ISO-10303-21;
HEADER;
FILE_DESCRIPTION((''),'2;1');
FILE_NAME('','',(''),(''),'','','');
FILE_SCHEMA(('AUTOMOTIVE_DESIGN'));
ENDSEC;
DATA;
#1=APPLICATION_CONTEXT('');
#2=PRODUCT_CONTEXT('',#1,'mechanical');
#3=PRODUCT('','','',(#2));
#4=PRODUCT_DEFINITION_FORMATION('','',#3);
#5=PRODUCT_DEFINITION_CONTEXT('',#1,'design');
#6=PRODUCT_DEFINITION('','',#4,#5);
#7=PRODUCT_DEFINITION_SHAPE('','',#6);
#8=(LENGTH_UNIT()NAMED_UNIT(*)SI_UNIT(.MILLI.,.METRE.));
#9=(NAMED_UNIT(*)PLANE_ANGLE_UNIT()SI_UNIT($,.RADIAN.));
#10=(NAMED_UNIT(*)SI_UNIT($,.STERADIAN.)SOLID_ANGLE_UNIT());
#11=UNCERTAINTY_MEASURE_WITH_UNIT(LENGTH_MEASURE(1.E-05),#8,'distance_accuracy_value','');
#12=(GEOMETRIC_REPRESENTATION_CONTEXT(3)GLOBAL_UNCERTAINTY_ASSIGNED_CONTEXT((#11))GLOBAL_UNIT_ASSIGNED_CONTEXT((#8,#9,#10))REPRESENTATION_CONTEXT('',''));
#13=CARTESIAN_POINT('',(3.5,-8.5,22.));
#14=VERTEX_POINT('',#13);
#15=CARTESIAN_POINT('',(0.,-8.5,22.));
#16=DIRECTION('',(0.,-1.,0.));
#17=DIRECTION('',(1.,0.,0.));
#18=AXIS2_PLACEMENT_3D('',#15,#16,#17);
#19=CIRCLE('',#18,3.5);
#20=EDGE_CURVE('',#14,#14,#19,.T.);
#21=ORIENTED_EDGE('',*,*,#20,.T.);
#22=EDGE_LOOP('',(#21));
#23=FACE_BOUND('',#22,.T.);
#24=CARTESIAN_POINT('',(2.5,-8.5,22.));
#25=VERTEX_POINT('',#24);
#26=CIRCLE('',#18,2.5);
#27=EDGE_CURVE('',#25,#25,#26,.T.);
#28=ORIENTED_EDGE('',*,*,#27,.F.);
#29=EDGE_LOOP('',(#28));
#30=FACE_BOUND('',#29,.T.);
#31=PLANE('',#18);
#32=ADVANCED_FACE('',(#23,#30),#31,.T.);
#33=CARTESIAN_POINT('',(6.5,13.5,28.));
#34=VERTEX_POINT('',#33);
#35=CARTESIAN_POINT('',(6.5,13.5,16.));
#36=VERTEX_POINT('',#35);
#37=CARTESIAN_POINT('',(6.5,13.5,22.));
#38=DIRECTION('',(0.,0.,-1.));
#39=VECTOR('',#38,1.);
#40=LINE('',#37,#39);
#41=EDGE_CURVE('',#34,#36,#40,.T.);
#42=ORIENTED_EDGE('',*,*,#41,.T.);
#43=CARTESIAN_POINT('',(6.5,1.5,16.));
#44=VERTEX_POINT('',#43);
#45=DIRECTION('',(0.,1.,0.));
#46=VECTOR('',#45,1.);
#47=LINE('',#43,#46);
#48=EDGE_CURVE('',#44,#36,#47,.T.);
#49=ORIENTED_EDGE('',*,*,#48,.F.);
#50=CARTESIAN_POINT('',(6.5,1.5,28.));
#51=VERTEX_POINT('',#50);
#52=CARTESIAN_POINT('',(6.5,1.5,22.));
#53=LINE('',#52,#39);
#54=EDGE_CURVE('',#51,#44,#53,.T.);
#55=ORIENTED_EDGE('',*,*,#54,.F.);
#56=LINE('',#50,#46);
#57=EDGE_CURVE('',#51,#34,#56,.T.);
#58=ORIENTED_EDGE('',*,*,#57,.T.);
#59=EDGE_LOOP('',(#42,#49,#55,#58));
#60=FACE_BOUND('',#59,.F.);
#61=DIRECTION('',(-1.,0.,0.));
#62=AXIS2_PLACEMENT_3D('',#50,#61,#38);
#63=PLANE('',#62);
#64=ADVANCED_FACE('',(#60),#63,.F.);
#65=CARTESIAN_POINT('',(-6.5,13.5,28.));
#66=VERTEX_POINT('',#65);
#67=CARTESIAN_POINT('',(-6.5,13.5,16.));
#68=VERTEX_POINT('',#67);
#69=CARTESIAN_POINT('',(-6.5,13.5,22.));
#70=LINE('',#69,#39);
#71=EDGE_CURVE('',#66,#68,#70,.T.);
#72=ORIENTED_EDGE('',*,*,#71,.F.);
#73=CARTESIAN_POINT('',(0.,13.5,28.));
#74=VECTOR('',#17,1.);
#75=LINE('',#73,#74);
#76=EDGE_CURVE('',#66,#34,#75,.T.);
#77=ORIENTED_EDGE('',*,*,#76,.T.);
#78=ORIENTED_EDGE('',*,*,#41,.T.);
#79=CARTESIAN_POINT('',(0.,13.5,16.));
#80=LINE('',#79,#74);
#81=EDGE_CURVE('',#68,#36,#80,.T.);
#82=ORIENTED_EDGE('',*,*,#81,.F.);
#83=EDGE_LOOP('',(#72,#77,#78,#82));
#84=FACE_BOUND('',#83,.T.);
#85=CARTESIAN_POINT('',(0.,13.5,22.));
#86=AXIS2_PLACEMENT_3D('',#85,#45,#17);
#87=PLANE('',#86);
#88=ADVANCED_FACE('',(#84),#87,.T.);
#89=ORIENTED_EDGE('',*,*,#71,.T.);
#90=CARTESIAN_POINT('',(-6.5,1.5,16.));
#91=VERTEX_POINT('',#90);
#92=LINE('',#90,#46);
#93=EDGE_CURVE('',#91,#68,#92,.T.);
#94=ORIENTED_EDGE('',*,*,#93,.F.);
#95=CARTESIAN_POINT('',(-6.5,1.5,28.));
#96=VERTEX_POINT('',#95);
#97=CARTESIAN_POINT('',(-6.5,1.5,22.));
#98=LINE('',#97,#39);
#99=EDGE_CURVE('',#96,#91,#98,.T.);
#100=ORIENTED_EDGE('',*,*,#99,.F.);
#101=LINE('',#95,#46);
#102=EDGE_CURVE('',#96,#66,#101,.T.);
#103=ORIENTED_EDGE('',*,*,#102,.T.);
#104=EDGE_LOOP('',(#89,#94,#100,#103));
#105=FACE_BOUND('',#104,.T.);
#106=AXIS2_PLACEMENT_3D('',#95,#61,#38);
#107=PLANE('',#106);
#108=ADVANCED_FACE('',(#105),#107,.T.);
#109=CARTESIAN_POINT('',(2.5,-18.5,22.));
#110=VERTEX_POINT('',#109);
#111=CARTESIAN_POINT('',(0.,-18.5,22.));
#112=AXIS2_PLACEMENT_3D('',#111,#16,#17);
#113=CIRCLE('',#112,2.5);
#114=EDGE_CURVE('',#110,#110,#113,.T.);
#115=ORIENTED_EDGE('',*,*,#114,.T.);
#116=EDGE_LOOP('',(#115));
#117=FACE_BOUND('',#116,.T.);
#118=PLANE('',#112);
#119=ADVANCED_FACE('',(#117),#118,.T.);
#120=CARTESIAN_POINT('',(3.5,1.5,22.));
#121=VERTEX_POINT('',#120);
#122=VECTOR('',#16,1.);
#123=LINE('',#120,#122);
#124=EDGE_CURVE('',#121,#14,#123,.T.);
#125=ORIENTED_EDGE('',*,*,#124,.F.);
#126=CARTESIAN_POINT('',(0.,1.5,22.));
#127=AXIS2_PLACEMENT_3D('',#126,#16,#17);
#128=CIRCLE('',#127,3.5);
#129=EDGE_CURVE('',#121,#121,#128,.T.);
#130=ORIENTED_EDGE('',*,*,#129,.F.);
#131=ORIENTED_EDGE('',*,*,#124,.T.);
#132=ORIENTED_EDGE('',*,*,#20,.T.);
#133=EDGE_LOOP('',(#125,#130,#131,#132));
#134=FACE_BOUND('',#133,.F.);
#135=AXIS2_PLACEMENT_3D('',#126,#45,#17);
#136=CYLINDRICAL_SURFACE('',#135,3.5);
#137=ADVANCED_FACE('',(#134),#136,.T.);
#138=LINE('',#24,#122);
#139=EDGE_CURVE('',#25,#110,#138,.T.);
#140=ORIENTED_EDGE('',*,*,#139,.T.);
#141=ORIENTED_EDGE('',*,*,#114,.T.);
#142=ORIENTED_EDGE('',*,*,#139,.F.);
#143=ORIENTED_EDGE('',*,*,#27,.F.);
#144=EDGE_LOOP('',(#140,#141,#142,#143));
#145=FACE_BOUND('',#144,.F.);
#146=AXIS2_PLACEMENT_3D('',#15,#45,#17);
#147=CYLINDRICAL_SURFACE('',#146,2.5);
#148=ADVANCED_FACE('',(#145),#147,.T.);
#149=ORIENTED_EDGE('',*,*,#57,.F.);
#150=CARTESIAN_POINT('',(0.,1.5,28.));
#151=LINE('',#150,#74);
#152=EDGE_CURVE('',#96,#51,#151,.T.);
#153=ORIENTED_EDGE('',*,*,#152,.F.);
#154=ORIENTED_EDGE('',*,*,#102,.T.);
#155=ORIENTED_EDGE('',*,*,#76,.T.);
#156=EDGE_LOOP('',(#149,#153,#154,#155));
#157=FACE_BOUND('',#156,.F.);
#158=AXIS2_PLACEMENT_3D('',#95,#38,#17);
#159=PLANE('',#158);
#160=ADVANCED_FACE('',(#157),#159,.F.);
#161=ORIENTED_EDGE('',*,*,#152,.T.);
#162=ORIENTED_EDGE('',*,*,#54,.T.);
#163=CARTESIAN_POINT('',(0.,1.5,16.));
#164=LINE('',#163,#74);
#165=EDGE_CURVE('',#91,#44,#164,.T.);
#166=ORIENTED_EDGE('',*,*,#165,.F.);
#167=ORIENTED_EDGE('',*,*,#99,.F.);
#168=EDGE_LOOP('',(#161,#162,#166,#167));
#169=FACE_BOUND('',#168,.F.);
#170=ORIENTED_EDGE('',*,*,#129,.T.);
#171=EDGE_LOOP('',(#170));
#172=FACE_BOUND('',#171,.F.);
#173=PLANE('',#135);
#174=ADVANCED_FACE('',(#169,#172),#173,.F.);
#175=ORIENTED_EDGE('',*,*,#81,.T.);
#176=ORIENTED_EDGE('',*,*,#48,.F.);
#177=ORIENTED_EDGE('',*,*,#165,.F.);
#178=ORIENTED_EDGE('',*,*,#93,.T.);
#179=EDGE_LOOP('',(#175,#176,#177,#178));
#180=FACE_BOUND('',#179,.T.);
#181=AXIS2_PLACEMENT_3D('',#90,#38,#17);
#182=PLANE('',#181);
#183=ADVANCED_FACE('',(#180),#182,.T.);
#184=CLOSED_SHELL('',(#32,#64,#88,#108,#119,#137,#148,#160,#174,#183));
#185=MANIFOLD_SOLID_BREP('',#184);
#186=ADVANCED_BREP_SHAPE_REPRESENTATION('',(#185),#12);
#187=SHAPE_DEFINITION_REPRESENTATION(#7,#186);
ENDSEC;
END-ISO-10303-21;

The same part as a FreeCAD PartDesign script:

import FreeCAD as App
import Part
import Sketcher

V = App.Vector

doc = App.newDocument("Part")
body = doc.addObject("PartDesign::Body", "Body")

# Sketch on XY plane
sketch1 = body.newObject("Sketcher::SketchObject", "Sketch")
sketch1.AttachmentSupport = (doc.getObject("XY_Plane"), [""])
sketch1.MapMode = "FlatFace"
sketch1.addGeometry(Part.Circle(V(0, 0, 0), V(0, 0, 1), 3.5), False)
sketch1.addConstraint([
    Sketcher.Constraint("Coincident", 0, 3, -1, 1),
    Sketcher.Constraint("Diameter", 0, 7.0),
])
pad1 = body.newObject("PartDesign::Pad", "Pad")
pad1.Profile = sketch1
pad1.Length = 10

# Sketch on XY plane
sketch2 = body.newObject("Sketcher::SketchObject", "Sketch001")
sketch2.AttachmentSupport = (doc.getObject("XY_Plane"), [""])
sketch2.MapMode = "FlatFace"
sketch2.AttachmentOffset = App.Placement(V(0, 0, 10), App.Rotation())
sketch2.addGeometry(Part.Circle(V(0, 0, 0), V(0, 0, 1), 2.5), False)
sketch2.addConstraint([
    Sketcher.Constraint("Coincident", 0, 3, -1, 1),
    Sketcher.Constraint("Diameter", 0, 5.0),
])
pad2 = body.newObject("PartDesign::Pad", "Pad001")
pad2.Profile = sketch2
pad2.Length = 10

# Sketch on XY plane
sketch3 = body.newObject("Sketcher::SketchObject", "Sketch002")
sketch3.AttachmentSupport = (doc.getObject("XY_Plane"), [""])
sketch3.MapMode = "FlatFace"
sketch3.addGeometry([
    Part.LineSegment(V(-6, -6, 0), V(-6, 6, 0)),
    Part.LineSegment(V(-6, 6, 0), V(6, 6, 0)),
    Part.LineSegment(V(6, 6, 0), V(6, -6, 0)),
    Part.LineSegment(V(6, -6, 0), V(-6, -6, 0)),
], False)
sketch3.addConstraint([
    Sketcher.Constraint("Coincident", 0, 2, 1, 1),
    Sketcher.Constraint("Coincident", 1, 2, 2, 1),
    Sketcher.Constraint("Coincident", 2, 2, 3, 1),
    Sketcher.Constraint("Coincident", 3, 2, 0, 1),
    Sketcher.Constraint("Vertical", 0),
    Sketcher.Constraint("Horizontal", 1),
    Sketcher.Constraint("Vertical", 2),
    Sketcher.Constraint("Horizontal", 3),
    Sketcher.Constraint("Symmetric", 0, 2, 2, 2, -1, 1),
    Sketcher.Constraint("DistanceX", 1, 1, 1, 2, 13.0),
    Sketcher.Constraint("DistanceY", 0, 1, 0, 2, 12.0),
])
pad3 = body.newObject("PartDesign::Pad", "Pad002")
pad3.Profile = sketch3
pad3.Length = 12
pad3.Reversed = True
body2 = doc.addObject("PartDesign::Body", "Body001")
doc.recompute()

body.Placement = App.Placement(V(0, 1.5, 22), App.Rotation(V(1, 0, 0), 90))
boolean = body2.newObject("PartDesign::Boolean", "Boolean")
boolean.Type = "Fuse"
boolean.addObjects([body])

doc.recompute()
